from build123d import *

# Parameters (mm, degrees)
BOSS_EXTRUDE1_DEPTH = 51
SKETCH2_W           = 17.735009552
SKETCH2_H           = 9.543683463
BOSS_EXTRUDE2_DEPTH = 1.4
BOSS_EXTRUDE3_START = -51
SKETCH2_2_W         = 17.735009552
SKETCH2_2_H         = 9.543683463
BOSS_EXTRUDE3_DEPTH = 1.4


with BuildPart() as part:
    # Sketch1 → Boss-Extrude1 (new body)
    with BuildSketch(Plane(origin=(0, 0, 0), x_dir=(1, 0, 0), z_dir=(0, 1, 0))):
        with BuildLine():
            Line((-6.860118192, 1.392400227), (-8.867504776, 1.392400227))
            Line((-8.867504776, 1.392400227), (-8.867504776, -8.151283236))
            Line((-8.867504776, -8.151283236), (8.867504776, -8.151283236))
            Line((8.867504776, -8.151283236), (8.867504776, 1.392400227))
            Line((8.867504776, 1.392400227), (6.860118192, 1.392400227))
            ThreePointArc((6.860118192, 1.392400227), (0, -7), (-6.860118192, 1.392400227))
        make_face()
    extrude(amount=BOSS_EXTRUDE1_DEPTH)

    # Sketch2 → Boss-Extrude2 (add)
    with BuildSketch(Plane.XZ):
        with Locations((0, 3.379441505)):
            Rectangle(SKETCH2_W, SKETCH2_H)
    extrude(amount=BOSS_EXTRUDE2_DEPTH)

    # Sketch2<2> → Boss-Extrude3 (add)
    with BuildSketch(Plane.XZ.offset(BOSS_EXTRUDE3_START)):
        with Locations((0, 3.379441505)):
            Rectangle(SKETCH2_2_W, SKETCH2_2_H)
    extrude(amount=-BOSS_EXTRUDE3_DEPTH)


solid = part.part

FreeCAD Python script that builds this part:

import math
import FreeCAD as App
import Part
import Sketcher
from FreeCAD import Vector

doc = App.newDocument("Part")
body = doc.addObject("PartDesign::Body", "Body")

sketch1 = doc.addObject("Sketcher::SketchObject", "Sketch")
body.addObject(sketch1)
sketch1.AttachmentSupport = (doc.XZ_Plane, [""])
sketch1.MapMode = "FlatFace"
sketch1.addGeometry([
    Part.LineSegment(Vector(-6.9, -1.4, 0), Vector(-8.9, -1.4, 0)),
    Part.LineSegment(Vector(-8.9, -1.4, 0), Vector(-8.9, 8.2, 0)),
    Part.LineSegment(Vector(-8.9, 8.2, 0), Vector(8.9, 8.2, 0)),
    Part.LineSegment(Vector(8.9, 8.2, 0), Vector(8.9, -1.4, 0)),
    Part.LineSegment(Vector(8.9, -1.4, 0), Vector(6.9, -1.4, 0)),
    Part.ArcOfCircle(Part.Circle(Vector(0, 0, 0), Vector(0, 0, 1), 7), math.radians(-11), math.radians(191)),
], False)
sketch1.addConstraint([
    Sketcher.Constraint("Coincident", 0, 2, 1, 1),
    Sketcher.Constraint("Coincident", 1, 2, 2, 1),
    Sketcher.Constraint("Coincident", 2, 2, 3, 1),
    Sketcher.Constraint("Coincident", 3, 2, 4, 1),
    Sketcher.Constraint("Coincident", 4, 2, 5, 1),
    Sketcher.Constraint("Coincident", 5, 2, 0, 1),
    Sketcher.Constraint("Horizontal", 0),
    Sketcher.Constraint("Vertical", 1),
    Sketcher.Constraint("Horizontal", 2),
    Sketcher.Constraint("Vertical", 3),
    Sketcher.Constraint("Horizontal", 4),
    Sketcher.Constraint("Coincident", 5, 3, -1, 1),
    Sketcher.Constraint("Symmetric", 0, 2, 3, 2, -2),
    Sketcher.Constraint("Radius", 5, 7.0),
    Sketcher.Constraint("DistanceX", 2, 1, 2, 2, 17.73501),
    Sketcher.Constraint("DistanceY", 0, 2, -1, 1, 1.3924),
    Sketcher.Constraint("DistanceY", 1, 1, 1, 2, 9.543683),
])
pad1 = doc.addObject("PartDesign::Pad", "Pad")
body.addObject(pad1)
pad1.Profile = sketch1
pad1.Length = 51
pad1.Reversed = True

sketch2 = doc.addObject("Sketcher::SketchObject", "Sketch001")
body.addObject(sketch2)
sketch2.AttachmentSupport = (doc.XZ_Plane, [""])
sketch2.MapMode = "FlatFace"
sketch2.addGeometry([
    Part.LineSegment(Vector(-9, 8, 0), Vector(-9, -1, 0)),
    Part.LineSegment(Vector(-9, -1, 0), Vector(9, -1, 0)),
    Part.LineSegment(Vector(9, -1, 0), Vector(9, 8, 0)),
    Part.LineSegment(Vector(9, 8, 0), Vector(-9, 8, 0)),
], False)
sketch2.addConstraint([
    Sketcher.Constraint("Coincident", 0, 2, 1, 1),
    Sketcher.Constraint("Coincident", 1, 2, 2, 1),
    Sketcher.Constraint("Coincident", 2, 2, 3, 1),
    Sketcher.Constraint("Coincident", 3, 2, 0, 1),
    Sketcher.Constraint("Vertical", 0),
    Sketcher.Constraint("Horizontal", 1),
    Sketcher.Constraint("Vertical", 2),
    Sketcher.Constraint("Horizontal", 3),
    Sketcher.Constraint("DistanceX", 1, 1, 1, 2, 17.73501),
    Sketcher.Constraint("DistanceY", 0, 2, -1, 1, 1.3924),
    Sketcher.Constraint("DistanceY", 0, 2, 0, 1, 9.543683),
    Sketcher.Constraint("DistanceX", 0, 2, -1, 1, 8.867505),
])
pad2 = doc.addObject("PartDesign::Pad", "Pad001")
body.addObject(pad2)
pad2.Profile = sketch2
pad2.Length = 1.4

sketch3 = doc.addObject("Sketcher::SketchObject", "Sketch002")
body.addObject(sketch3)
sketch3.AttachmentSupport = (doc.XZ_Plane, [""])
sketch3.MapMode = "FlatFace"
sketch3.AttachmentOffset = App.Placement(Vector(0, 0, -51), App.Rotation())
sketch3.addGeometry([
    Part.LineSegment(Vector(-9, 8, 0), Vector(-9, -1, 0)),
    Part.LineSegment(Vector(-9, -1, 0), Vector(9, -1, 0)),
    Part.LineSegment(Vector(9, -1, 0), Vector(9, 8, 0)),
    Part.LineSegment(Vector(9, 8, 0), Vector(-9, 8, 0)),
], False)
sketch3.addConstraint([
    Sketcher.Constraint("Coincident", 0, 2, 1, 1),
    Sketcher.Constraint("Coincident", 1, 2, 2, 1),
    Sketcher.Constraint("Coincident", 2, 2, 3, 1),
    Sketcher.Constraint("Coincident", 3, 2, 0, 1),
    Sketcher.Constraint("Vertical", 0),
    Sketcher.Constraint("Horizontal", 1),
    Sketcher.Constraint("Vertical", 2),
    Sketcher.Constraint("Horizontal", 3),
    Sketcher.Constraint("DistanceX", 1, 1, 1, 2, 17.73501),
    Sketcher.Constraint("DistanceY", 0, 2, -1, 1, 1.3924),
    Sketcher.Constraint("DistanceY", 0, 2, 0, 1, 9.543683),
    Sketcher.Constraint("DistanceX", 0, 2, -1, 1, 8.867505),
])
pad3 = doc.addObject("PartDesign::Pad", "Pad002")
body.addObject(pad3)
pad3.Profile = sketch3
pad3.Length = 1.4
pad3.Reversed = True

doc.recompute()
